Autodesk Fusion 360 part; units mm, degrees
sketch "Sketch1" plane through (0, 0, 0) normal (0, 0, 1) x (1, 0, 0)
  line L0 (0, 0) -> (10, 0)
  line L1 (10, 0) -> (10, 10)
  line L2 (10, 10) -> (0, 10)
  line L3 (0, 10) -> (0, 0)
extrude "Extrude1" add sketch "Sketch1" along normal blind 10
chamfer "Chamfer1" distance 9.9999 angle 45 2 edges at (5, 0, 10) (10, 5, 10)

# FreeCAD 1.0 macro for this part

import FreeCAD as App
import Part
import Sketcher


def edges_at(feature, points):
    """Names of the edges that pass closest to the given points."""
    edges = feature.Shape.Edges
    near = lambda p: min(range(len(edges)), key=lambda i: edges[i].distToShape(Part.Vertex(*p))[0])
    return sorted({f"Edge{near(p) + 1}" for p in points})


def add_polygon(sketch, points):
    """Adds a closed chain of lines whose ends are joined by coincident constraints."""
    first, n = sketch.GeometryCount, len(points)
    for a, b in zip(points, points[1:] + points[:1]):
        sketch.addGeometry(Part.LineSegment(App.Vector(*a, 0), App.Vector(*b, 0)), False)
    for i in range(n):
        sketch.addConstraint(Sketcher.Constraint("Coincident", first + i, 2, first + (i + 1) % n, 1))

doc = App.newDocument("Part")
params = doc.addObject("Spreadsheet::Sheet", "Params")
for row, (alias, value) in enumerate([
    ("sketch1_width", "10 mm"),
    ("pad1_length", "10 mm"),
    ("chamfer_size", "9.9999 mm"),
], start=1):
    params.set(f"A{row}", alias)
    params.set(f"B{row}", "=" + value)
    params.setAlias(f"B{row}", alias)

body = doc.addObject("PartDesign::Body", "Body")

# Sketch on XY plane
sketch1 = doc.addObject("Sketcher::SketchObject", "Sketch")
body.addObject(sketch1)
sketch1.AttachmentSupport = (doc.XY_Plane, [""])
sketch1.MapMode = "FlatFace"
add_polygon(sketch1, [(0, 10), (0, 0), (10, 0), (10, 10)])  # lines 0-3
sketch1.addConstraint([
    Sketcher.Constraint("Vertical", 0),
    Sketcher.Constraint("Horizontal", 1),
    Sketcher.Constraint("Vertical", 2),
    Sketcher.Constraint("Horizontal", 3),
    Sketcher.Constraint("Coincident", 0, 2, -1, 1),
    Sketcher.Constraint("Equal", 3, 0),
    Sketcher.Constraint("DistanceX", 1, 1, 1, 2, 10.0),
])
sketch1.setExpression("Constraints[10]", "Params.sketch1_width")
pad1 = doc.addObject("PartDesign::Pad", "Pad")
body.addObject(pad1)
pad1.Profile = sketch1
pad1.setExpression("Length", "Params.pad1_length")
doc.recompute()

chamfer = doc.addObject("PartDesign::Chamfer", "Chamfer")
body.addObject(chamfer)
chamfer.Base = (pad1, edges_at(pad1, [(5, 0, 10), (10, 5, 10)]))
chamfer.setExpression("Size", "Params.chamfer_size")

doc.recompute()
